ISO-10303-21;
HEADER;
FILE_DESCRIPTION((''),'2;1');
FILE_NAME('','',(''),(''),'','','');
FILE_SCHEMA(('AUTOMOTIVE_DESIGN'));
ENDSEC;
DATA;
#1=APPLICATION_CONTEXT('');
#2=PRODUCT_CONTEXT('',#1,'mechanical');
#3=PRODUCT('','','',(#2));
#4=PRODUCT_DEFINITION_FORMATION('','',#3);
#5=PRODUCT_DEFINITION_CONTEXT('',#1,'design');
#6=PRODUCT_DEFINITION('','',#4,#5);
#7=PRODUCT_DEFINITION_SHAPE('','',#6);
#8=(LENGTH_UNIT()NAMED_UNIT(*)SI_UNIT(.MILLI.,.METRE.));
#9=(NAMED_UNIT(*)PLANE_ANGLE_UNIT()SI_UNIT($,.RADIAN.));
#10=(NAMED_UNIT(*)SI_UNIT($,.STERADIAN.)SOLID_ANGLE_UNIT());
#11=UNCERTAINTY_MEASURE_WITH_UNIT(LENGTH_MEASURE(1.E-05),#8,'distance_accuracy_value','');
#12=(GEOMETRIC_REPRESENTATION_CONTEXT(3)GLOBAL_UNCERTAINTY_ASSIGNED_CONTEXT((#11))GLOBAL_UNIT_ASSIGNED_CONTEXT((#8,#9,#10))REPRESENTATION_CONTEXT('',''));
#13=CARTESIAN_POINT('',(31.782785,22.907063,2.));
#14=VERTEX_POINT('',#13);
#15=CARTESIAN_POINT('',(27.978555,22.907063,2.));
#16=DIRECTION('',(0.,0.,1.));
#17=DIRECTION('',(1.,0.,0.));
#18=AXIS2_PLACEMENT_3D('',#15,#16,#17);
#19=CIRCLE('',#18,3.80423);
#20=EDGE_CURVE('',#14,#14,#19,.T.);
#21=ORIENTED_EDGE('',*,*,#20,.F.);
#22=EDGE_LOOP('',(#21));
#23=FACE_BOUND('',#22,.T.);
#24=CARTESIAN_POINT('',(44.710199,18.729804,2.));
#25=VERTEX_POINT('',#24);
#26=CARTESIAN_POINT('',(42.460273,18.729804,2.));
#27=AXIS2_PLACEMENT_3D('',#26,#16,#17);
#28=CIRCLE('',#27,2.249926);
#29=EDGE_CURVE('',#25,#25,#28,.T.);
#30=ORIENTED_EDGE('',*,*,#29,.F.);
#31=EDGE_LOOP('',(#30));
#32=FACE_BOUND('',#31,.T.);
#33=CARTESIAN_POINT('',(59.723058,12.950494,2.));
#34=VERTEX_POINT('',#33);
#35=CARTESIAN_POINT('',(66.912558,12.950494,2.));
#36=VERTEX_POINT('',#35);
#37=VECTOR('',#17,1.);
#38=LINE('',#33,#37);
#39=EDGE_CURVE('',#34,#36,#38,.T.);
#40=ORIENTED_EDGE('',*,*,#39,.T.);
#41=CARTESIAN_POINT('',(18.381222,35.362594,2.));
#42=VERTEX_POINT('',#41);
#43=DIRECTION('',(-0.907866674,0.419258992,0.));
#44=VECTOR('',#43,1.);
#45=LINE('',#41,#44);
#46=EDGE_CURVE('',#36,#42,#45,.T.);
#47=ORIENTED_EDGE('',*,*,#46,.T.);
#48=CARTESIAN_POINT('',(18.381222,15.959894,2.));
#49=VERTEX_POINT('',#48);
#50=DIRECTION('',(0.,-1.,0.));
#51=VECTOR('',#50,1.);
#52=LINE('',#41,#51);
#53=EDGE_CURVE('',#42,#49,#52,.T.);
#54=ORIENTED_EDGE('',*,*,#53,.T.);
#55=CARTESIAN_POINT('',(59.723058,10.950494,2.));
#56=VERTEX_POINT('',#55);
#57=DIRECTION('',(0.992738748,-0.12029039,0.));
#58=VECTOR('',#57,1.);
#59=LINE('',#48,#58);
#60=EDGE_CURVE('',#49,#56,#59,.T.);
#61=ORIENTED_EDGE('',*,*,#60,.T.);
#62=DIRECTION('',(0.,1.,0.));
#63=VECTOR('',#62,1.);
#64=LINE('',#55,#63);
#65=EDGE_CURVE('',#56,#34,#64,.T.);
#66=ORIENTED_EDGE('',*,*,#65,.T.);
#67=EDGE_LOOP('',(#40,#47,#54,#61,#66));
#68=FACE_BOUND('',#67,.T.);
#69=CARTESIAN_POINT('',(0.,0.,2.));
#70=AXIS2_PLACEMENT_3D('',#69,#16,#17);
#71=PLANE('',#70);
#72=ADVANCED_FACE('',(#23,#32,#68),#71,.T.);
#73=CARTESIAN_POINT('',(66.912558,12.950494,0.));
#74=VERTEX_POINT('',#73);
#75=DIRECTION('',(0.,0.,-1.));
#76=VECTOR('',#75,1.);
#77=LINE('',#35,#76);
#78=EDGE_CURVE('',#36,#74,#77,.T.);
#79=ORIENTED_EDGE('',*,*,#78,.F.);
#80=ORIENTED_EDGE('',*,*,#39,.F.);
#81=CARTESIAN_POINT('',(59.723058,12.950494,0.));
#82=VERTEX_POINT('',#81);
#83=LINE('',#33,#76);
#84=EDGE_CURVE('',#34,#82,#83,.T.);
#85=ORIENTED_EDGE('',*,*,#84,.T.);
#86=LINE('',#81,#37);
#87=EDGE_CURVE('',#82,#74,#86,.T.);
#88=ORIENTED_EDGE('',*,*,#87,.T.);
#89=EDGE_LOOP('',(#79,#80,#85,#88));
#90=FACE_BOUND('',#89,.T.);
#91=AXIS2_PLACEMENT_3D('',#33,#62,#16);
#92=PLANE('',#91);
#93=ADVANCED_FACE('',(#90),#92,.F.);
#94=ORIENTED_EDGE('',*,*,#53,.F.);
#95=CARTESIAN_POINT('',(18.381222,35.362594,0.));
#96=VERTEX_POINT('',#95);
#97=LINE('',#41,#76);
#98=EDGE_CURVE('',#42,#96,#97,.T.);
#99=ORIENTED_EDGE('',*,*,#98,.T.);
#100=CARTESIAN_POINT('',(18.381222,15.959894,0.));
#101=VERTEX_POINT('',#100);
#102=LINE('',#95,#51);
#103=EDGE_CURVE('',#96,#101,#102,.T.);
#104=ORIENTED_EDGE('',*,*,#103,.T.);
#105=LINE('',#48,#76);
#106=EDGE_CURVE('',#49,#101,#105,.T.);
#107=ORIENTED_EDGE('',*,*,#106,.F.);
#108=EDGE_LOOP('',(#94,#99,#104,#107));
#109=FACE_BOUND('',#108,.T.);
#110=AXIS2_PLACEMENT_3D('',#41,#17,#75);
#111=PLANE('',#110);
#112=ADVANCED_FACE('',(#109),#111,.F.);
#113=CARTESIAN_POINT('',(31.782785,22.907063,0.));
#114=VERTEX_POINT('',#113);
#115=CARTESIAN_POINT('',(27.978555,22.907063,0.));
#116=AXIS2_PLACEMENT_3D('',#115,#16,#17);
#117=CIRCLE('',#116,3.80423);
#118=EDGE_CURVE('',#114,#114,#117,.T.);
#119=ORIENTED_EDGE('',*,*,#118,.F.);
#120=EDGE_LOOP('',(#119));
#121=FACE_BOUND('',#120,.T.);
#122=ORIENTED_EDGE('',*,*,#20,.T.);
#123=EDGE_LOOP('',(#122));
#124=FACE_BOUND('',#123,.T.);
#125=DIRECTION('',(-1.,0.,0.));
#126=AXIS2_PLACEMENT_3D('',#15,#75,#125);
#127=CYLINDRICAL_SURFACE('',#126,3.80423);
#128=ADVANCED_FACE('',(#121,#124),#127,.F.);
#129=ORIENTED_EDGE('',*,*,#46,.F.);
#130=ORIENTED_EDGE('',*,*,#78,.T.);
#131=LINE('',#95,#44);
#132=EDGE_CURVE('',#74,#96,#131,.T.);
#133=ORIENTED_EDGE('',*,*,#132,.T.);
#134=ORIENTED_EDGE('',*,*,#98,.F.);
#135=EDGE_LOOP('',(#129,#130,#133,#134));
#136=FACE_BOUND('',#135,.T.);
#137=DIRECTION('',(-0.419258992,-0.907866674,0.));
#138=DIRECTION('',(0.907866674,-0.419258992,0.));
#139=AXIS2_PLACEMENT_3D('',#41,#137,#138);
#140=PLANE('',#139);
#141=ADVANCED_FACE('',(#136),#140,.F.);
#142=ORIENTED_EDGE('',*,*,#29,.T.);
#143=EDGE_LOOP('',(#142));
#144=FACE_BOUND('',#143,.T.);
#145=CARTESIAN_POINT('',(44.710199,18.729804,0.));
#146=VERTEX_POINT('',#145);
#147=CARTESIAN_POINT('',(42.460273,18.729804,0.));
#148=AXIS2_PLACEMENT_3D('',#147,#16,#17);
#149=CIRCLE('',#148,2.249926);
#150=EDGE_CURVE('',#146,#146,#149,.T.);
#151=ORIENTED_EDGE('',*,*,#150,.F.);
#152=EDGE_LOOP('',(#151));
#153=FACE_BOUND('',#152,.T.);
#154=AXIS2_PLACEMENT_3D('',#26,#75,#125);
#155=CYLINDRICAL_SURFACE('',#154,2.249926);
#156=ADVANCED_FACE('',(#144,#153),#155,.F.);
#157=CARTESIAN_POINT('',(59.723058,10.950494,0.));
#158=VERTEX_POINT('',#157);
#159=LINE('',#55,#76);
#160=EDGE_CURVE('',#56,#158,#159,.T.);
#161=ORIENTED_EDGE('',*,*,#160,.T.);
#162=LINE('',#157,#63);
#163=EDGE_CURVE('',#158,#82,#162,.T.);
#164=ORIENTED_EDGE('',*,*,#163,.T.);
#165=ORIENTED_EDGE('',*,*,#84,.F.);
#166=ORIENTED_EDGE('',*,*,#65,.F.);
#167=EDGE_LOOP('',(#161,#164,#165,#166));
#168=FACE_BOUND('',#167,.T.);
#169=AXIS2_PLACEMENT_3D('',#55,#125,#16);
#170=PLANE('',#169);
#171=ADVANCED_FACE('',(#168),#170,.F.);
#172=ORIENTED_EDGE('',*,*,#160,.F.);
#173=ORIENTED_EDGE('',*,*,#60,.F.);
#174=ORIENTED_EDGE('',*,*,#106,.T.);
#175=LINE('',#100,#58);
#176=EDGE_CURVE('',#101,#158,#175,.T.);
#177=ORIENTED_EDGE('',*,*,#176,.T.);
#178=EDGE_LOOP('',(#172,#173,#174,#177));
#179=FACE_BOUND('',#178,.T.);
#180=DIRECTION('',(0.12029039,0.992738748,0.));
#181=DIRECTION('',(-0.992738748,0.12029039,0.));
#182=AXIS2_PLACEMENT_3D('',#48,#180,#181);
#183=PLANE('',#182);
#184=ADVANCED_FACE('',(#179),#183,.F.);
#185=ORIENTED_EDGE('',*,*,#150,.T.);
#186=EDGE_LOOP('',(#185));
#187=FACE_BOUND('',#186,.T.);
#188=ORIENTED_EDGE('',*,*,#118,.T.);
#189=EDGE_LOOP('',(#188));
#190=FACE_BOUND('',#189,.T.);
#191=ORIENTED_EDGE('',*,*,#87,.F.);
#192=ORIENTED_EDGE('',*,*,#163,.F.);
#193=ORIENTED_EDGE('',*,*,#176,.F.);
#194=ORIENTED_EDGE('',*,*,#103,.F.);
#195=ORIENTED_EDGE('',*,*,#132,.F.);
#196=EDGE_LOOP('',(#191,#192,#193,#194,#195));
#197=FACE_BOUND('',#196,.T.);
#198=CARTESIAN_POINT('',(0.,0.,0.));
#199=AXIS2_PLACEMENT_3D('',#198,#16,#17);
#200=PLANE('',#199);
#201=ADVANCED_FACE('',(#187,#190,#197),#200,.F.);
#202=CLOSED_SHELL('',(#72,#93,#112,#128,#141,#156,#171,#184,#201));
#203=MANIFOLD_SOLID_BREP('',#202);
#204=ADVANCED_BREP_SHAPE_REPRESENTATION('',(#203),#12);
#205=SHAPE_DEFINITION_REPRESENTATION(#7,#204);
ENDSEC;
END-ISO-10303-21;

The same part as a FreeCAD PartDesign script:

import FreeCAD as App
import Part
import Sketcher

V = App.Vector


def add_polygon(sketch, points):
    """Adds a closed chain of lines whose ends are joined by coincident constraints."""
    first, n = sketch.GeometryCount, len(points)
    for a, b in zip(points, points[1:] + points[:1]):
        sketch.addGeometry(Part.LineSegment(App.Vector(*a, 0), App.Vector(*b, 0)), False)
    for i in range(n):
        sketch.addConstraint(Sketcher.Constraint("Coincident", first + i, 2, first + (i + 1) % n, 1))

doc = App.newDocument("Part")
body = doc.addObject("PartDesign::Body", "Body")

# Sketch on XY plane
sketch1 = body.newObject("Sketcher::SketchObject", "Sketch")
sketch1.AttachmentSupport = (doc.getObject("XY_Plane"), [""])
sketch1.MapMode = "FlatFace"
add_polygon(sketch1, [(18.4, 35.4), (18.4, 16), (59.7, 11), (59.7, 13), (66.9, 13)])  # lines 0-4
sketch1.addGeometry(Part.Circle(V(42.5, 18.7, 0), V(0, 0, 1), 2.2), False)  # 5
sketch1.addGeometry(Part.Circle(V(28, 22.9, 0), V(0, 0, 1), 3.8), False)  # 6
sketch1.addConstraint(Sketcher.Constraint("Vertical", 0))
sketch1.addConstraint(Sketcher.Constraint("Vertical", 2))
sketch1.addConstraint(Sketcher.Constraint("Horizontal", 3))
sketch1.addConstraint(Sketcher.Constraint("DistanceY", 2, 1, 2, 2, 2.0))
sketch1.addConstraint(Sketcher.Constraint("Diameter", 5, 4.499851))
sketch1.addConstraint(Sketcher.Constraint("Diameter", 6, 7.60846))
sketch1.addConstraint(Sketcher.Constraint("DistanceX", 3, 1, 3, 2, 7.1895))
sketch1.addConstraint(Sketcher.Constraint("DistanceY", 0, 2, 0, 1, 19.4027))
sketch1.addConstraint(Sketcher.Constraint("DistanceY", 1, 2, 0, 2, 5.0094))
sketch1.addConstraint(Sketcher.Constraint("DistanceY", 5, 3, 6, 3, 4.17726))
sketch1.addConstraint(Sketcher.Constraint("DistanceY", 0, 2, 6, 3, 6.94717))
sketch1.addConstraint(Sketcher.Constraint("DistanceX", 0, 2, 5, 3, 24.079051))
sketch1.addConstraint(Sketcher.Constraint("Distance", 1, 41.644224))
sketch1.addConstraint(Sketcher.Constraint("DistanceX", -1, 1, 5, 3, 42.460273))
sketch1.addConstraint(Sketcher.Constraint("DistanceY", -1, 1, 5, 3, 18.729804))
sketch1.addConstraint(Sketcher.Constraint("DistanceX", -1, 1, 6, 3, 27.978555))
pad1 = body.newObject("PartDesign::Pad", "Pad")
pad1.Profile = sketch1
pad1.Length = 2

doc.recompute()
